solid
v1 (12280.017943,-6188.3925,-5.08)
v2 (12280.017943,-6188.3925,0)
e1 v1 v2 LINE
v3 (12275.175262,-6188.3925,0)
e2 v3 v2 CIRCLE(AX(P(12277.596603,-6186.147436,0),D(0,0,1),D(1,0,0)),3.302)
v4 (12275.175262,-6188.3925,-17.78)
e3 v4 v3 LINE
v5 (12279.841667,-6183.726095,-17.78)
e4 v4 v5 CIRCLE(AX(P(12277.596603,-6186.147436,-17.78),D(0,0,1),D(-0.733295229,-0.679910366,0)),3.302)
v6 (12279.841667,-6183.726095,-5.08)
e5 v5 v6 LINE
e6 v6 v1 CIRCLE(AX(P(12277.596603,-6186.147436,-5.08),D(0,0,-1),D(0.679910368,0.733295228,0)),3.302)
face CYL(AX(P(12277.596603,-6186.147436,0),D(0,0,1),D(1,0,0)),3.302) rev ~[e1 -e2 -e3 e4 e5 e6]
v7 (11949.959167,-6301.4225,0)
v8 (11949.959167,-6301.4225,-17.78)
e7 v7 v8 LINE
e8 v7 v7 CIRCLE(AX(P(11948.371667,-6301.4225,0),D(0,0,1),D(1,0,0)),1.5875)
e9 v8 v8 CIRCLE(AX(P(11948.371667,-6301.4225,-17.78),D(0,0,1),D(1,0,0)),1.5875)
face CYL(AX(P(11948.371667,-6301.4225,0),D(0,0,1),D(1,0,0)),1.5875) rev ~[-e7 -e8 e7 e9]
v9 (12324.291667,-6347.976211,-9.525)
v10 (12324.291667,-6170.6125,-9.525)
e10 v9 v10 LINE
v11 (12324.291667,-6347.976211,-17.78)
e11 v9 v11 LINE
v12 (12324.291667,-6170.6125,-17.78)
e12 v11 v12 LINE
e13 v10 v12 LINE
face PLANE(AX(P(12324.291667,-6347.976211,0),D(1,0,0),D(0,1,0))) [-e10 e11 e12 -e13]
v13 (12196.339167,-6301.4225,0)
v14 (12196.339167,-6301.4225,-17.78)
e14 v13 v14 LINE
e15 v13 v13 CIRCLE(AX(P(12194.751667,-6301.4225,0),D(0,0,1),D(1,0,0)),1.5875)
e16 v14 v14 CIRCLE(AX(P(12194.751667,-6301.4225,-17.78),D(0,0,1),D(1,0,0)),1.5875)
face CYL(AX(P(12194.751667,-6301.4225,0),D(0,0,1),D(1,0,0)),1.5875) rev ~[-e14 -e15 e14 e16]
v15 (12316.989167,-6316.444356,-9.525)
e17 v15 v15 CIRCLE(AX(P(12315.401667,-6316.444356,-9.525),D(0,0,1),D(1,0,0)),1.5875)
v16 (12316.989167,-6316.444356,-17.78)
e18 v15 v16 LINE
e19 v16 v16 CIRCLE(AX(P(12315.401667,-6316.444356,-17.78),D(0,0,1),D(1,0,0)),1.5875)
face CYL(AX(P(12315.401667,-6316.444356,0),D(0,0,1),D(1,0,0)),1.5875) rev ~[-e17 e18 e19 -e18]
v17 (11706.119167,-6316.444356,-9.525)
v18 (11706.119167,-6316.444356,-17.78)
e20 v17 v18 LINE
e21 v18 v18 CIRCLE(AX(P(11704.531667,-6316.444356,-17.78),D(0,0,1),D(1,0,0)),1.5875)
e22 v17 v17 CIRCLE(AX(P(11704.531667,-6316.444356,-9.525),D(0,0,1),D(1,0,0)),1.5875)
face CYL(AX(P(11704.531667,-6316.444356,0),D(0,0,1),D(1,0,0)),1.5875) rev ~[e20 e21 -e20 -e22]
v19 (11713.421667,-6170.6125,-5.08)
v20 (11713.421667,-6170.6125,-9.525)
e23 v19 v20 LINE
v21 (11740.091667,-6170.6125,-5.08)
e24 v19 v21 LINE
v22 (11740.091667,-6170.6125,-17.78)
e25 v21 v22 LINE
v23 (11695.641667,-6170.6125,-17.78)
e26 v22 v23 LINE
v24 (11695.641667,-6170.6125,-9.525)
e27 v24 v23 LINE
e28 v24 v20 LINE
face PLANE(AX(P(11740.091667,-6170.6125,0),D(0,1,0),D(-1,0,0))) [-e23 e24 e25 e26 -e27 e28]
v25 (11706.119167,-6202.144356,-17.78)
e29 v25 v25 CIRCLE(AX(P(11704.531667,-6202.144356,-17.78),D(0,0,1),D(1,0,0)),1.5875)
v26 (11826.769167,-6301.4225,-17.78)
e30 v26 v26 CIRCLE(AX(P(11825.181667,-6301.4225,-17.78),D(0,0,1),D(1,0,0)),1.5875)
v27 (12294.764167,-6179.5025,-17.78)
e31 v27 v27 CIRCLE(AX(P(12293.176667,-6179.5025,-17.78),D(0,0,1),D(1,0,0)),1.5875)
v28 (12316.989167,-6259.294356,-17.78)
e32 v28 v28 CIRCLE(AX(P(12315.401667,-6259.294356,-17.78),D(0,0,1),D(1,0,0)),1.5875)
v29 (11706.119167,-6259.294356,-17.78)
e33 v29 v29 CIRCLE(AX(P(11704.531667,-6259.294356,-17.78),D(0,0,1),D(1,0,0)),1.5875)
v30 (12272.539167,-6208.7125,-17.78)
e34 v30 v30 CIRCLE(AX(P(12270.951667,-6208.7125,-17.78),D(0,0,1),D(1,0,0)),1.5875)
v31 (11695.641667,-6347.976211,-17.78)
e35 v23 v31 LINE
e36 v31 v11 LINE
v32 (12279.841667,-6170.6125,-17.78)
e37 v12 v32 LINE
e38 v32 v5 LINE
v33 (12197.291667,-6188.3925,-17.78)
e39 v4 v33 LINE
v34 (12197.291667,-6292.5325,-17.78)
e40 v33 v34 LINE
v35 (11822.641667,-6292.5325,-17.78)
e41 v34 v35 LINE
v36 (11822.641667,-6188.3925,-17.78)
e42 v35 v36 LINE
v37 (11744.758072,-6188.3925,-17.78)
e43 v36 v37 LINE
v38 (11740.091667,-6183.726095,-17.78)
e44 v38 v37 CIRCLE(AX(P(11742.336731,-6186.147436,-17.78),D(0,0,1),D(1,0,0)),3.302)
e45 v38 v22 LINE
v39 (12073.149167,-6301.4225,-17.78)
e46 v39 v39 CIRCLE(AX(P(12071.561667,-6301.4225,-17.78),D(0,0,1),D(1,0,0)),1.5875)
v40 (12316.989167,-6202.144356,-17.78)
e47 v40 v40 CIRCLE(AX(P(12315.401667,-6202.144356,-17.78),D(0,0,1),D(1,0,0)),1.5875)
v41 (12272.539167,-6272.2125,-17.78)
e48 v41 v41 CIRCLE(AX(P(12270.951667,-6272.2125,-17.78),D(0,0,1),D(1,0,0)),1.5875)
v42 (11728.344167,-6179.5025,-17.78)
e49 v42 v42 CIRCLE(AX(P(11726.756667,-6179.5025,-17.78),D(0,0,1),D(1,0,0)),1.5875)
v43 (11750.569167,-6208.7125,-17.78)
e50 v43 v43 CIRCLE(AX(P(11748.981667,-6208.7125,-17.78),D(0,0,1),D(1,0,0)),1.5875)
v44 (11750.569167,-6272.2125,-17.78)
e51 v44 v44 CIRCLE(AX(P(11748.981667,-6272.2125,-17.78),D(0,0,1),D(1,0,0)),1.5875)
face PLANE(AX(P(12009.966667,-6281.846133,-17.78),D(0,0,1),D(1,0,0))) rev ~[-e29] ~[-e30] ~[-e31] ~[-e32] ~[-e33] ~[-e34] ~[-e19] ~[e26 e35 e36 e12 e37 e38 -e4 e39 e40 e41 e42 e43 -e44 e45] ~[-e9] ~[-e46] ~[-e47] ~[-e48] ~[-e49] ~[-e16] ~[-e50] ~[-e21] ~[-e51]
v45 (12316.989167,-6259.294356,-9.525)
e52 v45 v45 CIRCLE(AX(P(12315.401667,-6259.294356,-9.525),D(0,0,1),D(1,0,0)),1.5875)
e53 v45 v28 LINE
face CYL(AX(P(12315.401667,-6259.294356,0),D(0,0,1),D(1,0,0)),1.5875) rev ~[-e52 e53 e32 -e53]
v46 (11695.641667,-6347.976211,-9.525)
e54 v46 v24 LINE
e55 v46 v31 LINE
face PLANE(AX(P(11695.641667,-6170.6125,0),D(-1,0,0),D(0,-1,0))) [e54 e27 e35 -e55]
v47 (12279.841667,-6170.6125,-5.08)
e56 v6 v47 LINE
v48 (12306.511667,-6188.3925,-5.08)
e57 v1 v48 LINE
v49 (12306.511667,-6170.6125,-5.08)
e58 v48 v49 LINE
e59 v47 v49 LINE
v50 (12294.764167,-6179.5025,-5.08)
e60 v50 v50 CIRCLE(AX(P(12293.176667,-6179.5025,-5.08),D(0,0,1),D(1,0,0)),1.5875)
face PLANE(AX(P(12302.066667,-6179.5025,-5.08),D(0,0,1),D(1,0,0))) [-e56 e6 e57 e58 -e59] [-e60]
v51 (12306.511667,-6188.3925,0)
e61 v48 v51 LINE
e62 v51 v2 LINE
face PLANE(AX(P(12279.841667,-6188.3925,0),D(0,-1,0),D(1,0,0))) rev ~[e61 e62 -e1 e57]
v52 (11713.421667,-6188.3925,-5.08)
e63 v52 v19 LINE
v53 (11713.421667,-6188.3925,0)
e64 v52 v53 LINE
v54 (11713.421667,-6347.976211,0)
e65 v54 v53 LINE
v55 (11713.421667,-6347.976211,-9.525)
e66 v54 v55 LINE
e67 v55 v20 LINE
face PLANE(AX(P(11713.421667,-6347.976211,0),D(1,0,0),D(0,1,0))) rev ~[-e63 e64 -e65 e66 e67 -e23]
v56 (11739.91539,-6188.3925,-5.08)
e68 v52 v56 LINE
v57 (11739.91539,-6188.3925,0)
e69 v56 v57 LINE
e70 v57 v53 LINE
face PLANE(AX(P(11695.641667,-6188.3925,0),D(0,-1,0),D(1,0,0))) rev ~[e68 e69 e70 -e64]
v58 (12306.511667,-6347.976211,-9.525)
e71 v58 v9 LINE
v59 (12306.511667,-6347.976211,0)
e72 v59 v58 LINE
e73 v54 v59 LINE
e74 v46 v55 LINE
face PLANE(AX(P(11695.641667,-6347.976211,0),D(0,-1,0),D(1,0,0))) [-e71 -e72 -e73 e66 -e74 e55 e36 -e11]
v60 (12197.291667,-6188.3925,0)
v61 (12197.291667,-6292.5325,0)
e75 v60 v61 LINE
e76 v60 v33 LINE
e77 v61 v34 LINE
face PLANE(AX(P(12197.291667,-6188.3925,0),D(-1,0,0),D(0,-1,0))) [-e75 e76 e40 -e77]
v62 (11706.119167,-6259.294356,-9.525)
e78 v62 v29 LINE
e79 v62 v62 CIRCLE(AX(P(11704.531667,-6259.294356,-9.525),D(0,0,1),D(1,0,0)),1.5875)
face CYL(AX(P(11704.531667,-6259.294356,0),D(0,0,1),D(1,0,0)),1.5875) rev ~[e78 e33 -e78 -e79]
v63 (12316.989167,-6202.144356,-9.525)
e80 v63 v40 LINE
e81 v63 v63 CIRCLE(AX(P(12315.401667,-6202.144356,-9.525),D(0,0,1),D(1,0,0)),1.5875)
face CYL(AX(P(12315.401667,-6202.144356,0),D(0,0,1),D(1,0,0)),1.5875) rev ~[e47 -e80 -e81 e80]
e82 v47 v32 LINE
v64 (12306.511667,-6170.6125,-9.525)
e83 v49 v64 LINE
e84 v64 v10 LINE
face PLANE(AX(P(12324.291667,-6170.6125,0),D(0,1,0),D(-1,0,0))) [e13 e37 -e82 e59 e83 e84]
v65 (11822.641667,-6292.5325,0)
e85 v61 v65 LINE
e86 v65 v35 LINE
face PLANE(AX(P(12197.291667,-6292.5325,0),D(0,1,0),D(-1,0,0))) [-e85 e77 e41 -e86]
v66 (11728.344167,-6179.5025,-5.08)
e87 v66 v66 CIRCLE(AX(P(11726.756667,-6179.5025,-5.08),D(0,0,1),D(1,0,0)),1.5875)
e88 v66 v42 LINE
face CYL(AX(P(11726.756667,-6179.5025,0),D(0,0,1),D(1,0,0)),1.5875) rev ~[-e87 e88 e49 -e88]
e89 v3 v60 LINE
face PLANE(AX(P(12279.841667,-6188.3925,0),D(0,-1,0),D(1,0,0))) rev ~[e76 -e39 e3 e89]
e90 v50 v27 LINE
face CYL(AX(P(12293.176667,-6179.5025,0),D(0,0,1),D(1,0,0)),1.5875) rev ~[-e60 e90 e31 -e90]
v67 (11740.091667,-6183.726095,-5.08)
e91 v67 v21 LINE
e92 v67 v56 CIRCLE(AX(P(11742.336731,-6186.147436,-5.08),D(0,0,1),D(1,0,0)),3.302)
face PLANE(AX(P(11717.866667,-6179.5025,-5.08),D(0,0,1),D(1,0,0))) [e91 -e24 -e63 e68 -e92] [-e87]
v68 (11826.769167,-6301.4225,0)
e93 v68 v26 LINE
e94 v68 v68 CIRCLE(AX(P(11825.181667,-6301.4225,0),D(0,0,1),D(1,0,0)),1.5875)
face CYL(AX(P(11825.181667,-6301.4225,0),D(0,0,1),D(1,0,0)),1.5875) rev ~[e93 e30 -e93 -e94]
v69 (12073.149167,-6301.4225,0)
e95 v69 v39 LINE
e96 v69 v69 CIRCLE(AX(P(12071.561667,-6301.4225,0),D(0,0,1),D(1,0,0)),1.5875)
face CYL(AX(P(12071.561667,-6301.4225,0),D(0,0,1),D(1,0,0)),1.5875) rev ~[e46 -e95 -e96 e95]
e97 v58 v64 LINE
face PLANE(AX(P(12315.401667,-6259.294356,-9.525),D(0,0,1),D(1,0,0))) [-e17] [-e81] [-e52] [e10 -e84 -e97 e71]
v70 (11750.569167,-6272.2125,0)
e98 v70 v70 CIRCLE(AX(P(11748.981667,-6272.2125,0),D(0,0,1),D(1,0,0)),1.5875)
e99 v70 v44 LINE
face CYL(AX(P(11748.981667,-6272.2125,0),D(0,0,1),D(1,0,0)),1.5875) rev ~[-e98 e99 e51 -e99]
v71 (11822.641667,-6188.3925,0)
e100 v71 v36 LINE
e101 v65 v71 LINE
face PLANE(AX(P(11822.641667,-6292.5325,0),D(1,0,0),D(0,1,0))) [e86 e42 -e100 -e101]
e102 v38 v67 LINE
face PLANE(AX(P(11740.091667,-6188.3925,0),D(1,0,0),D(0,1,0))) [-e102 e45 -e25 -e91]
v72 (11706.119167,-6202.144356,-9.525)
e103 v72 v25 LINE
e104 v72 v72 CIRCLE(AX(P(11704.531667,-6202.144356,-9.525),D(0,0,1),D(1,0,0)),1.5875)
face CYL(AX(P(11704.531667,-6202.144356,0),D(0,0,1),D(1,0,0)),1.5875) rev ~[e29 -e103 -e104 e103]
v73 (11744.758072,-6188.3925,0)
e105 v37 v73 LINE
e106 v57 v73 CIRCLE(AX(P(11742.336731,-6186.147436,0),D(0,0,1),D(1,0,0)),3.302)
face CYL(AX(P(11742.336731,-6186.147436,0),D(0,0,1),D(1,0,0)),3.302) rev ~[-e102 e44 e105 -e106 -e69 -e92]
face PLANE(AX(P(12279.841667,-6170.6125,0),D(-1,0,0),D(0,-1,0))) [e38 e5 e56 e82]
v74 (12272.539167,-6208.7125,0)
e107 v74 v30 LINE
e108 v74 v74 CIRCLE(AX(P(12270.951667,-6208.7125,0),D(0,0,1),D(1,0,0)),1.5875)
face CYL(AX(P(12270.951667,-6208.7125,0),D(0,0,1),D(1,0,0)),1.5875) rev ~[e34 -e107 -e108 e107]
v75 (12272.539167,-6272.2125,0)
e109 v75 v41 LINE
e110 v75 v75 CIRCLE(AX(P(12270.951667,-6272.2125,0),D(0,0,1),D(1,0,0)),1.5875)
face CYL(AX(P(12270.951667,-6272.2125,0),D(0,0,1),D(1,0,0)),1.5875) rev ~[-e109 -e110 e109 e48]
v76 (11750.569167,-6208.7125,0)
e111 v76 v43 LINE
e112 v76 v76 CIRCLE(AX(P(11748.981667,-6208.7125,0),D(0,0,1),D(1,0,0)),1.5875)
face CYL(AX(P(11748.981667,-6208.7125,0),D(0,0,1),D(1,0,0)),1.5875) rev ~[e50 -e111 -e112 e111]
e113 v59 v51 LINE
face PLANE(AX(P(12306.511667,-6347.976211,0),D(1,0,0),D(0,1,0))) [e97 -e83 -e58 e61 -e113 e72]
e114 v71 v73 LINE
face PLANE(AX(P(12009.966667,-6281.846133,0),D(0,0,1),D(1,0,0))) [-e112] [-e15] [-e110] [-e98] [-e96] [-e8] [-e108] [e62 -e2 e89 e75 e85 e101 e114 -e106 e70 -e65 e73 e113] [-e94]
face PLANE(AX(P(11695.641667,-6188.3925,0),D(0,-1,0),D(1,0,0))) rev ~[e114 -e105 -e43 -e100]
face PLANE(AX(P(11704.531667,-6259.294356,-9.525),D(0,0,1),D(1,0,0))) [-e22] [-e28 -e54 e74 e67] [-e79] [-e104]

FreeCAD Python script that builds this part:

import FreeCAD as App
import Part
import Sketcher

V = App.Vector
Q = App.Units.Quantity

doc = App.newDocument("Part")
body = doc.addObject("PartDesign::Body", "Body")

# Sketch on XY plane
sketch1 = body.newObject("Sketcher::SketchObject", "Sketch")
sketch1.AttachmentSupport = (doc.getObject("XY_Plane"), [""])
sketch1.MapMode = "FlatFace"
sketch1.addGeometry([
    Part.LineSegment(V(12324, -6348, 0), V(12324, -6171, 0)),  # 0
    Part.LineSegment(V(12324, -6171, 0), V(12280, -6171, 0)),  # 1
    Part.LineSegment(V(12280, -6171, 0), V(12280, -6188, 0)),  # 2
    Part.LineSegment(V(12280, -6188, 0), V(12197, -6188, 0)),  # 3
    Part.LineSegment(V(12197, -6188, 0), V(12197, -6293, 0)),  # 4
    Part.LineSegment(V(12197, -6293, 0), V(11823, -6293, 0)),  # 5
    Part.LineSegment(V(11823, -6293, 0), V(11823, -6188, 0)),  # 6
    Part.LineSegment(V(11823, -6188, 0), V(11740, -6188, 0)),  # 7
    Part.LineSegment(V(11740, -6188, 0), V(11740, -6171, 0)),  # 8
    Part.LineSegment(V(11740, -6171, 0), V(11696, -6171, 0)),  # 9
    Part.LineSegment(V(11696, -6171, 0), V(11696, -6348, 0)),  # 10
    Part.LineSegment(V(11696, -6348, 0), V(12324, -6348, 0)),  # 11
], False)
sketch1.addConstraint([
    Sketcher.Constraint("Coincident", 0, 2, 1, 1),
    Sketcher.Constraint("Coincident", 1, 2, 2, 1),
    Sketcher.Constraint("Coincident", 2, 2, 3, 1),
    Sketcher.Constraint("Coincident", 3, 2, 4, 1),
    Sketcher.Constraint("Coincident", 4, 2, 5, 1),
    Sketcher.Constraint("Coincident", 5, 2, 6, 1),
    Sketcher.Constraint("Coincident", 6, 2, 7, 1),
    Sketcher.Constraint("Coincident", 7, 2, 8, 1),
    Sketcher.Constraint("Coincident", 8, 2, 9, 1),
    Sketcher.Constraint("Coincident", 9, 2, 10, 1),
    Sketcher.Constraint("Coincident", 10, 2, 11, 1),
    Sketcher.Constraint("Coincident", 11, 2, 0, 1),
    Sketcher.Constraint("Vertical", 0),
    Sketcher.Constraint("Horizontal", 1),
    Sketcher.Constraint("Vertical", 2),
    Sketcher.Constraint("Horizontal", 3),
    Sketcher.Constraint("Vertical", 4),
    Sketcher.Constraint("Horizontal", 5),
    Sketcher.Constraint("Vertical", 6),
    Sketcher.Constraint("Horizontal", 7),
    Sketcher.Constraint("Vertical", 8),
    Sketcher.Constraint("Horizontal", 9),
    Sketcher.Constraint("Vertical", 10),
    Sketcher.Constraint("Horizontal", 11),
    Sketcher.Constraint("Horizontal", 3, 2, 6, 2),
    Sketcher.Constraint("Horizontal", 1, 2, 8, 2),
    Sketcher.Constraint("Equal", 3, 7),
    Sketcher.Constraint("Equal", 1, 9),
    Sketcher.Constraint("DistanceY", 2, 2, 2, 1, Q("0.7 in")),
    Sketcher.Constraint("DistanceY", 4, 2, 4, 1, Q("4.1 in")),
    Sketcher.Constraint("DistanceX", 3, 2, 0, 2, Q("5 in")),
    Sketcher.Constraint("DistanceX", 5, 2, 2, 2, Q("18 in")),
    Sketcher.Constraint("DistanceX", 1, 2, 1, 1, Q("1.75 in")),
    Sketcher.Constraint("DistanceY", 0, 2, -1, 1, Q("242.9375 in")),
    Sketcher.Constraint("DistanceY", 0, 1, 0, 2, 177.363711),
    Sketcher.Constraint("DistanceX", -1, 1, 0, 2, 12324.291667),
])
pad1 = body.newObject("PartDesign::Pad", "Pad")
pad1.Profile = sketch1
pad1.Length = Q("0.7 in")
pad1.Reversed = True

# Sketch on XY plane
sketch2 = body.newObject("Sketcher::SketchObject", "Sketch001")
sketch2.AttachmentSupport = (doc.getObject("XY_Plane"), [""])
sketch2.MapMode = "FlatFace"
sketch2.addGeometry([
    Part.LineSegment(V(11696, -6171, 0), V(11696, -6188, 0)),  # 0
    Part.LineSegment(V(11696, -6188, 0), V(11740, -6188, 0)),  # 1
    Part.LineSegment(V(11740, -6188, 0), V(11740, -6171, 0)),  # 2
    Part.LineSegment(V(11740, -6171, 0), V(11696, -6171, 0)),  # 3
    Part.LineSegment(V(12280, -6171, 0), V(12280, -6188, 0)),  # 4
    Part.LineSegment(V(12280, -6188, 0), V(12324, -6188, 0)),  # 5
    Part.LineSegment(V(12324, -6188, 0), V(12324, -6171, 0)),  # 6
    Part.LineSegment(V(12324, -6171, 0), V(12280, -6171, 0)),  # 7
], False)
sketch2.addConstraint([
    Sketcher.Constraint("Coincident", 0, 2, 1, 1),
    Sketcher.Constraint("Coincident", 1, 2, 2, 1),
    Sketcher.Constraint("Coincident", 2, 2, 3, 1),
    Sketcher.Constraint("Coincident", 3, 2, 0, 1),
    Sketcher.Constraint("Coincident", 4, 2, 5, 1),
    Sketcher.Constraint("Coincident", 5, 2, 6, 1),
    Sketcher.Constraint("Coincident", 6, 2, 7, 1),
    Sketcher.Constraint("Coincident", 7, 2, 4, 1),
    Sketcher.Constraint("Vertical", 0),
    Sketcher.Constraint("Horizontal", 1),
    Sketcher.Constraint("Vertical", 2),
    Sketcher.Constraint("Horizontal", 3),
    Sketcher.Constraint("Vertical", 4),
    Sketcher.Constraint("Horizontal", 5),
    Sketcher.Constraint("Vertical", 6),
    Sketcher.Constraint("Horizontal", 7),
    Sketcher.Constraint("Horizontal", 1, 2, 4, 2),
    Sketcher.Constraint("Horizontal", 3, 2, 6, 2),
    Sketcher.Constraint("Equal", 3, 5),
    Sketcher.Constraint("DistanceY", 0, 2, 0, 1, Q("0.7 in")),
    Sketcher.Constraint("DistanceX", 0, 2, 4, 2, Q("23 in")),
    Sketcher.Constraint("DistanceX", 1, 1, 1, 2, Q("1.75 in")),
    Sketcher.Constraint("DistanceY", 2, 2, -1, 1, Q("242.9375 in")),
    Sketcher.Constraint("DistanceX", -1, 1, 0, 2, 11695.641667),
])
pocket1 = body.newObject("PartDesign::Pocket", "Pocket")
pocket1.Profile = sketch2
pocket1.Length = Q("0.2 in")

# Sketch on XY plane
sketch3 = body.newObject("Sketcher::SketchObject", "Sketch002")
sketch3.AttachmentSupport = (doc.getObject("XY_Plane"), [""])
sketch3.MapMode = "FlatFace"
sketch3.addGeometry([
    Part.LineSegment(V(11696, -6171, 0), V(11696, -6348, 0)),  # 0
    Part.LineSegment(V(11696, -6348, 0), V(11713, -6348, 0)),  # 1
    Part.LineSegment(V(11713, -6348, 0), V(11713, -6171, 0)),  # 2
    Part.LineSegment(V(11713, -6171, 0), V(11696, -6171, 0)),  # 3
    Part.LineSegment(V(12307, -6171, 0), V(12307, -6348, 0)),  # 4
    Part.LineSegment(V(12307, -6348, 0), V(12324, -6348, 0)),  # 5
    Part.LineSegment(V(12324, -6348, 0), V(12324, -6171, 0)),  # 6
    Part.LineSegment(V(12324, -6171, 0), V(12307, -6171, 0)),  # 7
], False)
sketch3.addConstraint([
    Sketcher.Constraint("Coincident", 0, 2, 1, 1),
    Sketcher.Constraint("Coincident", 1, 2, 2, 1),
    Sketcher.Constraint("Coincident", 2, 2, 3, 1),
    Sketcher.Constraint("Coincident", 3, 2, 0, 1),
    Sketcher.Constraint("Coincident", 4, 2, 5, 1),
    Sketcher.Constraint("Coincident", 5, 2, 6, 1),
    Sketcher.Constraint("Coincident", 6, 2, 7, 1),
    Sketcher.Constraint("Coincident", 7, 2, 4, 1),
    Sketcher.Constraint("Vertical", 0),
    Sketcher.Constraint("Horizontal", 1),
    Sketcher.Constraint("Vertical", 2),
    Sketcher.Constraint("Horizontal", 3),
    Sketcher.Constraint("Vertical", 4),
    Sketcher.Constraint("Horizontal", 5),
    Sketcher.Constraint("Vertical", 6),
    Sketcher.Constraint("Horizontal", 7),
    Sketcher.Constraint("Horizontal", 1, 2, 4, 2),
    Sketcher.Constraint("Horizontal", 3, 2, 6, 2),
    Sketcher.Constraint("Equal", 3, 5),
    Sketcher.Constraint("DistanceX", 1, 1, 1, 2, Q("0.7 in")),
    Sketcher.Constraint("DistanceX", 1, 2, 4, 2, Q("23.35 in")),
    Sketcher.Constraint("DistanceY", 2, 2, -1, 1, Q("242.9375 in")),
    Sketcher.Constraint("DistanceY", 0, 2, 0, 1, 177.363711),
    Sketcher.Constraint("DistanceX", -1, 1, 0, 2, 11695.641667),
])
pocket2 = body.newObject("PartDesign::Pocket", "Pocket001")
pocket2.Profile = sketch3
pocket2.Length = Q("0.375 in")

# Sketch on XY plane
sketch4 = body.newObject("Sketcher::SketchObject", "Sketch003")
sketch4.AttachmentSupport = (doc.getObject("XY_Plane"), [""])
sketch4.MapMode = "FlatFace"
sketch4.addGeometry([
    Part.Circle(V(11704.5, -6316.4, 0), V(0, 0, 1), 1.6),  # 0
    Part.Circle(V(11704.5, -6259.3, 0), V(0, 0, 1), 1.6),  # 1
    Part.Circle(V(11704.5, -6202.1, 0), V(0, 0, 1), 1.6),  # 2
    Part.Circle(V(11726.8, -6179.5, 0), V(0, 0, 1), 1.6),  # 3
    Part.Circle(V(11749, -6208.7, 0), V(0, 0, 1), 1.6),  # 4
    Part.Circle(V(11749, -6272.2, 0), V(0, 0, 1), 1.6),  # 5
    Part.Circle(V(11825.2, -6301.4, 0), V(0, 0, 1), 1.6),  # 6
    Part.Circle(V(11948.4, -6301.4, 0), V(0, 0, 1), 1.6),  # 7
    Part.Circle(V(12071.6, -6301.4, 0), V(0, 0, 1), 1.6),  # 8
    Part.Circle(V(12194.8, -6301.4, 0), V(0, 0, 1), 1.6),  # 9
    Part.Circle(V(12315.4, -6316.4, 0), V(0, 0, 1), 1.6),  # 10
    Part.Circle(V(12315.4, -6259.3, 0), V(0, 0, 1), 1.6),  # 11
    Part.Circle(V(12271, -6272.2, 0), V(0, 0, 1), 1.6),  # 12
    Part.Circle(V(12271, -6208.7, 0), V(0, 0, 1), 1.6),  # 13
    Part.Circle(V(12315.4, -6202.1, 0), V(0, 0, 1), 1.6),  # 14
    Part.Circle(V(12293.2, -6179.5, 0), V(0, 0, 1), 1.6),  # 15
    Part.Circle(V(11742.3, -6186.1, 0), V(0, 0, 1), 3.3),  # 16
    Part.Circle(V(12277.6, -6186.1, 0), V(0, 0, 1), 3.3),  # 17
], False)
sketch4.addConstraint([
    Sketcher.Constraint("Equal", 0, 1),
    Sketcher.Constraint("Equal", 1, 2),
    Sketcher.Constraint("Equal", 2, 3),
    Sketcher.Constraint("Equal", 3, 4),
    Sketcher.Constraint("Equal", 4, 5),
    Sketcher.Constraint("Equal", 5, 6),
    Sketcher.Constraint("Equal", 6, 7),
    Sketcher.Constraint("Equal", 7, 8),
    Sketcher.Constraint("Equal", 8, 9),
    Sketcher.Constraint("Equal", 9, 10),
    Sketcher.Constraint("Equal", 10, 11),
    Sketcher.Constraint("Equal", 11, 12),
    Sketcher.Constraint("Equal", 12, 13),
    Sketcher.Constraint("Equal", 13, 14),
    Sketcher.Constraint("Equal", 14, 15),
    Sketcher.Constraint("Equal", 16, 17),
    Sketcher.Constraint("Horizontal", 6, 3, 7, 3),
    Sketcher.Constraint("Horizontal", 7, 3, 8, 3),
    Sketcher.Constraint("Horizontal", 8, 3, 9, 3),
    Sketcher.Constraint("Horizontal", 0, 3, 10, 3),
    Sketcher.Constraint("Horizontal", 1, 3, 11, 3),
    Sketcher.Constraint("Horizontal", 5, 3, 12, 3),
    Sketcher.Constraint("Horizontal", 4, 3, 13, 3),
    Sketcher.Constraint("Horizontal", 2, 3, 14, 3),
    Sketcher.Constraint("Horizontal", 3, 3, 15, 3),
    Sketcher.Constraint("Horizontal", 16, 3, 17, 3),
    Sketcher.Constraint("Vertical", 0, 3, 1, 3),
    Sketcher.Constraint("Vertical", 1, 3, 2, 3),
    Sketcher.Constraint("Vertical", 4, 3, 5, 3),
    Sketcher.Constraint("Vertical", 10, 3, 11, 3),
    Sketcher.Constraint("Vertical", 12, 3, 13, 3),
    Sketcher.Constraint("Vertical", 11, 3, 14, 3),
    Sketcher.Constraint("Diameter", 16, Q("0.26 in")),
    Sketcher.Constraint("Diameter", 0, Q("0.125 in")),
    Sketcher.Constraint("DistanceX", 5, 3, 6, 3, Q("3 in")),
    Sketcher.Constraint("DistanceX", 9, 3, 12, 3, Q("3 in")),
    Sketcher.Constraint("DistanceY", 0, 3, 2, 3, Q("4.5 in")),
    Sketcher.Constraint("DistanceY", 5, 3, 4, 3, Q("2.5 in")),
    Sketcher.Constraint("DistanceX", 0, 3, 7, 3, Q("9.6 in")),
    Sketcher.Constraint("DistanceX", 6, 3, 8, 3, Q("9.7 in")),
    Sketcher.Constraint("DistanceY", 8, 3, 3, 3, Q("4.8 in")),
    Sketcher.Constraint("DistanceX", 7, 3, 9, 3, Q("9.7 in")),
    Sketcher.Constraint("DistanceX", 8, 3, 10, 3, Q("9.6 in")),
    Sketcher.Constraint("DistanceY", 0, 3, 1, 3, Q("2.25 in")),
    Sketcher.Constraint("DistanceY", 4, 3, 3, 3, Q("1.15 in")),
    Sketcher.Constraint("DistanceX", 2, 3, 4, 3, Q("1.75 in")),
    Sketcher.Constraint("DistanceY", 4, 3, -1, 1, Q("244.4375 in")),
    Sketcher.Constraint("DistanceX", 2, 3, 3, 3, Q("0.875 in")),
    Sketcher.Constraint("DistanceX", 15, 3, 14, 3, Q("0.875 in")),
    Sketcher.Constraint("DistanceY", 2, 3, 16, 3, Q("0.6298 in")),
    Sketcher.Constraint("DistanceX", -1, 1, 16, 3, 11742.336731),
    Sketcher.Constraint("DistanceX", -1, 1, 0, 3, 11704.531667),
    Sketcher.Constraint("DistanceY", 0, 3, -1, 1, 6316.444356),
    Sketcher.Constraint("DistanceX", -1, 1, 17, 3, 12277.596603),
])
pocket3 = body.newObject("PartDesign::Pocket", "Pocket002")
pocket3.Profile = sketch4
pocket3.Length = Q("0.7 in")

doc.recompute()
